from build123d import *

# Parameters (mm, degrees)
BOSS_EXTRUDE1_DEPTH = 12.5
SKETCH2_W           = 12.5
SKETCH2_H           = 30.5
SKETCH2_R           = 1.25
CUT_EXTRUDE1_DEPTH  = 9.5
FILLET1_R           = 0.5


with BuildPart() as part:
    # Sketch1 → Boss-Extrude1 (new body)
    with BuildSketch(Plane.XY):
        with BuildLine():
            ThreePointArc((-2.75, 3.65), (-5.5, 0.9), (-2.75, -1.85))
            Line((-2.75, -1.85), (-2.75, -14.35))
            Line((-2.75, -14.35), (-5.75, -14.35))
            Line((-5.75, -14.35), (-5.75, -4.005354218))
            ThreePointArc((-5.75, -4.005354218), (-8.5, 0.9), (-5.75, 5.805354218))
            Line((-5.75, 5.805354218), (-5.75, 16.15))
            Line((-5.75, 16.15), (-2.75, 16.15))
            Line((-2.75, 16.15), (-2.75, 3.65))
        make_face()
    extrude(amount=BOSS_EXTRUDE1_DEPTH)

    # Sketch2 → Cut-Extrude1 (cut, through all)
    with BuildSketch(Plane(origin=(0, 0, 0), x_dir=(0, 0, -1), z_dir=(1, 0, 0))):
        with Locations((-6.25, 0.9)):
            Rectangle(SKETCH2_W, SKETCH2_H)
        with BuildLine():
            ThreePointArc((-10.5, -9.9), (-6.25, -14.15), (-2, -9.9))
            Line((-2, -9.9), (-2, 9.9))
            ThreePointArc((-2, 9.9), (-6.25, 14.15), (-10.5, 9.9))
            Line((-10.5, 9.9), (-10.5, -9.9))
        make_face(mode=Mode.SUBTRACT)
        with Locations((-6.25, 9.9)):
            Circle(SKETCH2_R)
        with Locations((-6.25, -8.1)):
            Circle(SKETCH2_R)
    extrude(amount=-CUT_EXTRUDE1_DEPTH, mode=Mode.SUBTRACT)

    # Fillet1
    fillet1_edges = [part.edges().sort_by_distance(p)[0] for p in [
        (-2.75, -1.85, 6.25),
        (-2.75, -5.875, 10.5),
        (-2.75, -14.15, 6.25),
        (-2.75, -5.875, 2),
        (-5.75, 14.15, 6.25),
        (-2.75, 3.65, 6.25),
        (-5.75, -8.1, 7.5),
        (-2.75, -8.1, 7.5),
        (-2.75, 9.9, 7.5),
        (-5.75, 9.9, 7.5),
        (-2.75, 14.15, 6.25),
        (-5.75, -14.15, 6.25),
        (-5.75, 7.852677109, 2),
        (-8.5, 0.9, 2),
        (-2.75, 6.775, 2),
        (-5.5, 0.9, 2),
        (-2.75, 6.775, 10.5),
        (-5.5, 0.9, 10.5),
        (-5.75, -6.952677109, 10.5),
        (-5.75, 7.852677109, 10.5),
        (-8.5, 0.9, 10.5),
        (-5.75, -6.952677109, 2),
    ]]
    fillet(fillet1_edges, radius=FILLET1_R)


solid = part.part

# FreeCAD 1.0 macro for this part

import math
import FreeCAD as App
import Part
import Sketcher

V = App.Vector


def edges_at(feature, points):
    """Names of the edges that pass closest to the given points."""
    edges = feature.Shape.Edges
    near = lambda p: min(range(len(edges)), key=lambda i: edges[i].distToShape(Part.Vertex(*p))[0])
    return sorted({f"Edge{near(p) + 1}" for p in points})

doc = App.newDocument("Part")
params = doc.addObject("Spreadsheet::Sheet", "Params")
for row, (alias, value) in enumerate([
    ("sketch1_width", "3 mm"),
    ("sketch1_radius", "2.75 mm"),
    ("sketch1_radius2", "5.75 mm"),
    ("sketch1_height", "12.5 mm"),
    ("pad1_length", "12.5 mm"),
    ("sketch2_diameter", "2.5 mm"),
    ("sketch2_radius", "4.25 mm"),
    ("sketch2_width", "30.5 mm"),
    ("sketch2_width2", "19.8 mm"),
    ("sketch2_height", "12.5 mm"),
    ("fillet_radius", "0.5 mm"),
], start=1):
    params.set(f"A{row}", alias)
    params.set(f"B{row}", "=" + value)
    params.setAlias(f"B{row}", alias)

body = doc.addObject("PartDesign::Body", "Body")

# Sketch on XY plane
sketch1 = body.newObject("Sketcher::SketchObject", "Sketch")
sketch1.AttachmentSupport = (doc.getObject("XY_Plane"), [""])
sketch1.MapMode = "FlatFace"
sketch1.addGeometry(Part.ArcOfCircle(Part.Circle(V(-2.8, 0.9, 0), V(0, 0, 1), 2.8), math.radians(90), math.radians(270)), False)
sketch1.addGeometry(Part.LineSegment(V(-2.8, 3.6, 0), V(-2.8, 16.1, 0)), False)
sketch1.addGeometry(Part.LineSegment(V(-2.8, 16.1, 0), V(-5.8, 16.1, 0)), False)
sketch1.addGeometry(Part.LineSegment(V(-5.8, 16.1, 0), V(-5.8, 5.8, 0)), False)
sketch1.addGeometry(Part.ArcOfCircle(Part.Circle(V(-2.7, 0.9, 0), V(0, 0, 1), 5.8), math.radians(121), math.radians(239)), False)
sketch1.addGeometry(Part.LineSegment(V(-5.8, -4, 0), V(-5.8, -14.3, 0)), False)
sketch1.addGeometry(Part.LineSegment(V(-5.8, -14.3, 0), V(-2.8, -14.3, 0)), False)
sketch1.addGeometry(Part.LineSegment(V(-2.8, -14.3, 0), V(-2.8, -1.9, 0)), False)
sketch1.addConstraint(Sketcher.Constraint("Coincident", 0, 1, 1, 1))
sketch1.addConstraint(Sketcher.Constraint("Coincident", 1, 2, 2, 1))
sketch1.addConstraint(Sketcher.Constraint("Coincident", 2, 2, 3, 1))
sketch1.addConstraint(Sketcher.Constraint("Coincident", 3, 2, 4, 1))
sketch1.addConstraint(Sketcher.Constraint("Coincident", 4, 2, 5, 1))
sketch1.addConstraint(Sketcher.Constraint("Coincident", 5, 2, 6, 1))
sketch1.addConstraint(Sketcher.Constraint("Coincident", 6, 2, 7, 1))
sketch1.addConstraint(Sketcher.Constraint("Coincident", 7, 2, 0, 2))
sketch1.addConstraint(Sketcher.Constraint("Vertical", 1))
sketch1.addConstraint(Sketcher.Constraint("Horizontal", 2))
sketch1.addConstraint(Sketcher.Constraint("Vertical", 3))
sketch1.addConstraint(Sketcher.Constraint("Vertical", 5))
sketch1.addConstraint(Sketcher.Constraint("Horizontal", 6))
sketch1.addConstraint(Sketcher.Constraint("Vertical", 7))
sketch1.addConstraint(Sketcher.Constraint("Coincident", 4, 3, 0, 3))
sketch1.addConstraint(Sketcher.Constraint("Vertical", 4, 3, 0, 1))
sketch1.addConstraint(Sketcher.Constraint("Vertical", 3, 2, 4, 2))
sketch1.addConstraint(Sketcher.Constraint("Vertical", 1, 2, 6, 2))
sketch1.addConstraint(Sketcher.Constraint("Equal", 3, 5))
sketch1.addConstraint(Sketcher.Constraint("DistanceX", 2, 2, 2, 1, 3.0))
sketch1.addConstraint(Sketcher.Constraint("Radius", 0, 2.75))
sketch1.addConstraint(Sketcher.Constraint("Radius", 4, 5.75))
sketch1.addConstraint(Sketcher.Constraint("DistanceY", 1, 1, 1, 2, 12.5))
sketch1.addConstraint(Sketcher.Constraint("DistanceY", -1, 1, 0, 3, 0.9))
sketch1.addConstraint(Sketcher.Constraint("DistanceX", 0, 3, -1, 1, 2.75))
sketch1.setExpression("Constraints[19]", "Params.sketch1_width")
sketch1.setExpression("Constraints[20]", "Params.sketch1_radius")
sketch1.setExpression("Constraints[21]", "Params.sketch1_radius2")
sketch1.setExpression("Constraints[22]", "Params.sketch1_height")
pad1 = body.newObject("PartDesign::Pad", "Pad")
pad1.Profile = sketch1
pad1.setExpression("Length", "Params.pad1_length")

# Sketch on YZ plane
sketch2 = body.newObject("Sketcher::SketchObject", "Sketch001")
sketch2.AttachmentSupport = (doc.getObject("YZ_Plane"), [""])
sketch2.MapMode = "FlatFace"
sketch2.addGeometry(Part.LineSegment(V(16.1, 12.5, 0), V(-14.3, 12.5, 0)), False)
sketch2.addGeometry(Part.LineSegment(V(-14.3, 12.5, 0), V(-14.3, 0, 0)), False)
sketch2.addGeometry(Part.LineSegment(V(-14.3, 0, 0), V(16.1, 0, 0)), False)
sketch2.addGeometry(Part.LineSegment(V(16.1, 0, 0), V(16.1, 12.5, 0)), False)
sketch2.addGeometry(Part.ArcOfCircle(Part.Circle(V(-9.9, 6.2, 0), V(0, 0, 1), 4.2), math.radians(90), math.radians(270)), False)
sketch2.addGeometry(Part.LineSegment(V(-9.9, 10.5, 0), V(9.9, 10.5, 0)), False)
sketch2.addGeometry(Part.ArcOfCircle(Part.Circle(V(9.9, 6.2, 0), V(0, 0, 1), 4.2), math.radians(-90), math.radians(90)), False)
sketch2.addGeometry(Part.LineSegment(V(9.9, 2, 0), V(-9.9, 2, 0)), False)
sketch2.addGeometry(Part.Circle(V(9.9, 6.2, 0), V(0, 0, 1), 1.2), False)
sketch2.addGeometry(Part.Circle(V(-8.1, 6.2, 0), V(0, 0, 1), 1.2), False)
sketch2.addConstraint(Sketcher.Constraint("Coincident", 0, 2, 1, 1))
sketch2.addConstraint(Sketcher.Constraint("Coincident", 1, 2, 2, 1))
sketch2.addConstraint(Sketcher.Constraint("Coincident", 2, 2, 3, 1))
sketch2.addConstraint(Sketcher.Constraint("Coincident", 3, 2, 0, 1))
sketch2.addConstraint(Sketcher.Constraint("Tangent", 4, 1, 5, 1))
sketch2.addConstraint(Sketcher.Constraint("Tangent", 5, 2, 6, 2))
sketch2.addConstraint(Sketcher.Constraint("Tangent", 6, 1, 7, 1))
sketch2.addConstraint(Sketcher.Constraint("Tangent", 7, 2, 4, 2))
sketch2.addConstraint(Sketcher.Constraint("Horizontal", 0))
sketch2.addConstraint(Sketcher.Constraint("Vertical", 1))
sketch2.addConstraint(Sketcher.Constraint("Horizontal", 2))
sketch2.addConstraint(Sketcher.Constraint("Vertical", 3))
sketch2.addConstraint(Sketcher.Constraint("Horizontal", 5))
sketch2.addConstraint(Sketcher.Constraint("Horizontal", 7))
sketch2.addConstraint(Sketcher.Constraint("Coincident", 8, 3, 6, 3))
sketch2.addConstraint(Sketcher.Constraint("Equal", 8, 9))
sketch2.addConstraint(Sketcher.Constraint("PointOnObject", 1, 2, -1))
sketch2.addConstraint(Sketcher.Constraint("Horizontal", 8, 3, 9, 3))
sketch2.addConstraint(Sketcher.Constraint("Diameter", 8, 2.5))
sketch2.addConstraint(Sketcher.Constraint("Radius", 4, 4.25))
sketch2.addConstraint(Sketcher.Constraint("DistanceX", 0, 2, 0, 1, 30.5))
sketch2.addConstraint(Sketcher.Constraint("DistanceX", 5, 1, 5, 2, 19.8))
sketch2.addConstraint(Sketcher.Constraint("DistanceY", 1, 2, 1, 1, 12.5))
sketch2.addConstraint(Sketcher.Constraint("DistanceY", -1, 1, 6, 1, 2.0))
sketch2.addConstraint(Sketcher.Constraint("DistanceX", 9, 3, 6, 3, 18.0))
sketch2.addConstraint(Sketcher.Constraint("DistanceX", 4, 3, -1, 1, 9.9))
sketch2.addConstraint(Sketcher.Constraint("DistanceX", 0, 2, -1, 1, 14.35))
sketch2.setExpression("Constraints[18]", "Params.sketch2_diameter")
sketch2.setExpression("Constraints[19]", "Params.sketch2_radius")
sketch2.setExpression("Constraints[20]", "Params.sketch2_width")
sketch2.setExpression("Constraints[21]", "Params.sketch2_width2")
sketch2.setExpression("Constraints[22]", "Params.sketch2_height")
pocket1 = body.newObject("PartDesign::Pocket", "Pocket")
pocket1.Profile = sketch2
pocket1.Type = "ThroughAll"
doc.recompute()

fillet = body.newObject("PartDesign::Fillet", "Fillet")
fillet.Base = (pocket1, edges_at(pocket1, [
    (-2.75, -1.85, 6.25),
    (-2.75, -5.875, 10.5),
    (-2.75, -14.15, 6.25),
    (-2.75, -5.875, 2),
    (-5.75, 14.15, 6.25),
    (-2.75, 3.65, 6.25),
    (-5.75, -8.1, 7.5),
    (-2.75, -8.1, 7.5),
    (-2.75, 9.9, 7.5),
    (-5.75, 9.9, 7.5),
    (-2.75, 14.15, 6.25),
    (-5.75, -14.15, 6.25),
    (-5.75, 7.853, 2),
    (-8.5, 0.9, 2),
    (-2.75, 6.775, 2),
    (-5.5, 0.9, 2),
    (-2.75, 6.775, 10.5),
    (-5.5, 0.9, 10.5),
    (-5.75, -6.953, 10.5),
    (-5.75, 7.853, 10.5),
    (-8.5, 0.9, 10.5),
    (-5.75, -6.953, 2),
]))
fillet.setExpression("Radius", "Params.fillet_radius")

doc.recompute()
